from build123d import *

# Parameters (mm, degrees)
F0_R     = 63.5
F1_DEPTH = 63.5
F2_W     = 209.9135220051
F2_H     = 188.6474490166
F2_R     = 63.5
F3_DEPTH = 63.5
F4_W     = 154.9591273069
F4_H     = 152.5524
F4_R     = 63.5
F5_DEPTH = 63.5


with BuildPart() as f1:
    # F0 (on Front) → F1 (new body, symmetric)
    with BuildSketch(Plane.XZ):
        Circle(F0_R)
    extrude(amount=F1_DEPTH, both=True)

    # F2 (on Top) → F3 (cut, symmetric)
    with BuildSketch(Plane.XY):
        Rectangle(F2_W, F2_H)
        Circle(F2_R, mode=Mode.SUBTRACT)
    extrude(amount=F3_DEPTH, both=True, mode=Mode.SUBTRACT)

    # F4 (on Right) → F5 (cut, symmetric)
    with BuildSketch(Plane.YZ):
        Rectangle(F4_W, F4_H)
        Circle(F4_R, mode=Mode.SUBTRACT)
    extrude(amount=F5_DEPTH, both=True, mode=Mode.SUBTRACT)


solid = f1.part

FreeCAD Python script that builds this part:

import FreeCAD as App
import Part
import Sketcher
from FreeCAD import Vector
Q = App.Units.Quantity


def add_polygon(sketch, points):
    """Adds a closed chain of lines whose ends are joined by coincident constraints."""
    first, n = sketch.GeometryCount, len(points)
    for a, b in zip(points, points[1:] + points[:1]):
        sketch.addGeometry(Part.LineSegment(App.Vector(*a, 0), App.Vector(*b, 0)), False)
    for i in range(n):
        sketch.addConstraint(Sketcher.Constraint("Coincident", first + i, 2, first + (i + 1) % n, 1))

doc = App.newDocument("Part")
params = doc.addObject("Spreadsheet::Sheet", "Params")
for row, (alias, value) in enumerate([
    ("sketch1_diameter", "5 in"),
    ("pad1_length", "5 in"),
    ("sketch2_diameter", "5 in"),
    ("pocket1_length", "5 in"),
    ("sketch3_diameter", "5 in"),
    ("sketch3_height", "6.006 in"),
    ("pocket2_length", "5 in"),
], start=1):
    params.set(f"A{row}", alias)
    params.set(f"B{row}", "=" + value)
    params.setAlias(f"B{row}", alias)

body = doc.addObject("PartDesign::Body", "Body")

# Sketch on XZ plane
sketch1 = body.newObject("Sketcher::SketchObject", "Sketch")
sketch1.AttachmentSupport = (doc.getObject("XZ_Plane"), [""])
sketch1.MapMode = "FlatFace"
sketch1.addGeometry(Part.Circle(Vector(0, 0, 0), Vector(0, 0, 1), 64), False)
sketch1.addConstraint([
    Sketcher.Constraint("Coincident", 0, 3, -1, 1),
    Sketcher.Constraint("Diameter", 0, Q("5 in")),
])
sketch1.setExpression("Constraints[1]", "Params.sketch1_diameter")
pad1 = body.newObject("PartDesign::Pad", "Pad")
pad1.Profile = sketch1
pad1.setExpression("Length", "Params.pad1_length")
pad1.Midplane = True

# Sketch on XY plane
sketch2 = body.newObject("Sketcher::SketchObject", "Sketch001")
sketch2.AttachmentSupport = (doc.getObject("XY_Plane"), [""])
sketch2.MapMode = "FlatFace"
add_polygon(sketch2, [(-105, 94), (-105, -94), (105, -94), (105, 94)])  # lines 0-3
sketch2.addGeometry(Part.Circle(Vector(0, 0, 0), Vector(0, 0, 1), 64), False)  # 4
sketch2.addConstraint([
    Sketcher.Constraint("Vertical", 0),
    Sketcher.Constraint("Horizontal", 1),
    Sketcher.Constraint("Vertical", 2),
    Sketcher.Constraint("Horizontal", 3),
    Sketcher.Constraint("Coincident", 4, 3, -1, 1),
    Sketcher.Constraint("Symmetric", 0, 2, 2, 2, -1, 1),
    Sketcher.Constraint("Diameter", 4, Q("5 in")),
    Sketcher.Constraint("DistanceY", 0, 2, 0, 1, 188.647449),
    Sketcher.Constraint("DistanceX", 1, 1, 1, 2, 209.913522),
])
sketch2.setExpression("Constraints[10]", "Params.sketch2_diameter")
pocket1 = body.newObject("PartDesign::Pocket", "Pocket")
pocket1.Profile = sketch2
pocket1.setExpression("Length", "Params.pocket1_length")
pocket1.Midplane = True

# Sketch on YZ plane
sketch3 = body.newObject("Sketcher::SketchObject", "Sketch002")
sketch3.AttachmentSupport = (doc.getObject("YZ_Plane"), [""])
sketch3.MapMode = "FlatFace"
add_polygon(sketch3, [(-77, 76), (-77, -76), (77, -76), (77, 76)])  # lines 0-3
sketch3.addGeometry(Part.Circle(Vector(0, 0, 0), Vector(0, 0, 1), 64), False)  # 4
sketch3.addConstraint([
    Sketcher.Constraint("Vertical", 0),
    Sketcher.Constraint("Horizontal", 1),
    Sketcher.Constraint("Vertical", 2),
    Sketcher.Constraint("Horizontal", 3),
    Sketcher.Constraint("Coincident", 4, 3, -1, 1),
    Sketcher.Constraint("Symmetric", 0, 2, 2, 2, -1, 1),
    Sketcher.Constraint("Diameter", 4, Q("5 in")),
    Sketcher.Constraint("DistanceY", 0, 2, 0, 1, Q("6.006 in")),
    Sketcher.Constraint("DistanceX", 1, 1, 1, 2, 154.959127),
])
sketch3.setExpression("Constraints[10]", "Params.sketch3_diameter")
sketch3.setExpression("Constraints[11]", "Params.sketch3_height")
pocket2 = body.newObject("PartDesign::Pocket", "Pocket001")
pocket2.Profile = sketch3
pocket2.setExpression("Length", "Params.pocket2_length")
pocket2.Midplane = True

doc.recompute()
